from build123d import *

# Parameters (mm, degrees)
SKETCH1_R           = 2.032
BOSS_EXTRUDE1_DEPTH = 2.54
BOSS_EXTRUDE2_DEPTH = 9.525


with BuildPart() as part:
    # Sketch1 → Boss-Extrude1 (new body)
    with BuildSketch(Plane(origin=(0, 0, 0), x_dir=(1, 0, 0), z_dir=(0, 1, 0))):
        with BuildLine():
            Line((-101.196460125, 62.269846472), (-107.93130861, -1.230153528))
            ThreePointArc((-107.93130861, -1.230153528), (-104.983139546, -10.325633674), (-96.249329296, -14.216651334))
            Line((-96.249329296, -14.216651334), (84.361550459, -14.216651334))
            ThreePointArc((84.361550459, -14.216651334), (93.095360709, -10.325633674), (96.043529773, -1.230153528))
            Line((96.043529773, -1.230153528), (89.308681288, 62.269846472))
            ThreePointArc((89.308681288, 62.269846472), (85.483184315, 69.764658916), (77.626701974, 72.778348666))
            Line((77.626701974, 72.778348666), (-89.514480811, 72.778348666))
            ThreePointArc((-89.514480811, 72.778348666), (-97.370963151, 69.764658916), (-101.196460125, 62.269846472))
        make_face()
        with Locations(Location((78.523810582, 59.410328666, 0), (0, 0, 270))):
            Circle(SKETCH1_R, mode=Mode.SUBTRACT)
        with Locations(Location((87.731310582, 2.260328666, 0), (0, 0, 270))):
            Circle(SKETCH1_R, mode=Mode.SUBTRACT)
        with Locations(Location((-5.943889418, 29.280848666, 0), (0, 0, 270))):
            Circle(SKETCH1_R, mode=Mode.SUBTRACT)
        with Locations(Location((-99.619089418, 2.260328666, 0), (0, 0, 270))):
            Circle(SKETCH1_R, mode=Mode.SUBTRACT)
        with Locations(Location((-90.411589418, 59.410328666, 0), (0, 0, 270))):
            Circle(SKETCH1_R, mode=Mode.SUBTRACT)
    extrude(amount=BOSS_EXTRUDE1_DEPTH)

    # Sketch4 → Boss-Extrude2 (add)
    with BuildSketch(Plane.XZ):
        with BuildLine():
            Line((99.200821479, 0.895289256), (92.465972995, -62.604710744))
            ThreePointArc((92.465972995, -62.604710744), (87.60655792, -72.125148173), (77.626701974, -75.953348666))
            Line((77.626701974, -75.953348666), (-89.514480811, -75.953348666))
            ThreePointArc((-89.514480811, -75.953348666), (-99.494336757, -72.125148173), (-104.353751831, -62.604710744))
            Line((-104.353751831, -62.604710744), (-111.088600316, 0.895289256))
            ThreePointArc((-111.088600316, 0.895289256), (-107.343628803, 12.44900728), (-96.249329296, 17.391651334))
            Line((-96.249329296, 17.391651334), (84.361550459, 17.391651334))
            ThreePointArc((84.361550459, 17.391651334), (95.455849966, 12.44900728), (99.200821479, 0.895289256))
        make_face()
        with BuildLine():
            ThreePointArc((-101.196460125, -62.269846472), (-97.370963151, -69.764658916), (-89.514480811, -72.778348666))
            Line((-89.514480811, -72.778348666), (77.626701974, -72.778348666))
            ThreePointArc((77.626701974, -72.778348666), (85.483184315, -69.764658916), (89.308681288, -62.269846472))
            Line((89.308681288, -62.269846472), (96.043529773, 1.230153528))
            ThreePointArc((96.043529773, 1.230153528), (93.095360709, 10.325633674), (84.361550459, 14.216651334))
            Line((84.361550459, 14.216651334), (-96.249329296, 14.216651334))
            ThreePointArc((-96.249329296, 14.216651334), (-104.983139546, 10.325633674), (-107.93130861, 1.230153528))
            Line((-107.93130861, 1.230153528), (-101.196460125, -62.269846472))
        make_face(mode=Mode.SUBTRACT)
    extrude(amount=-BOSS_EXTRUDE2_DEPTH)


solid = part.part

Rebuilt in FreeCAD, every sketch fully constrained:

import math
import FreeCAD as App
import Part
import Sketcher
Q = App.Units.Quantity

doc = App.newDocument("Part")
body = doc.addObject("PartDesign::Body", "Body")

sketch1 = body.newObject("Sketcher::SketchObject", "Sketch")
sketch1.AttachmentSupport = (doc.getObject("XZ_Plane"), [""])
sketch1.MapMode = "FlatFace"
sketch1.addGeometry([
    Part.LineSegment(App.Vector(-101.2, -62.3, 0), App.Vector(-107.9, 1.2, 0)),
    Part.ArcOfCircle(Part.Circle(App.Vector(-96.2, 2.5, 0), App.Vector(0, 0, 1), 11.7), math.radians(90), math.radians(186)),
    Part.LineSegment(App.Vector(-96.2, 14.2, 0), App.Vector(84.4, 14.2, 0)),
    Part.ArcOfCircle(Part.Circle(App.Vector(84.4, 2.5, 0), App.Vector(0, 0, 1), 11.7), math.radians(-6), math.radians(90)),
    Part.LineSegment(App.Vector(96, 1.2, 0), App.Vector(89.3, -62.3, 0)),
    Part.ArcOfCircle(Part.Circle(App.Vector(77.6, -61, 0), App.Vector(0, 0, 1), 11.7), math.radians(-90), math.radians(-6)),
    Part.LineSegment(App.Vector(77.6, -72.8, 0), App.Vector(-89.5, -72.8, 0)),
    Part.ArcOfCircle(Part.Circle(App.Vector(-89.5, -61, 0), App.Vector(0, 0, 1), 11.7), math.radians(-174), math.radians(-90)),
    Part.Circle(App.Vector(-99.6, -2.3, 0), App.Vector(0, 0, 1), 2),
    Part.Circle(App.Vector(87.7, -2.3, 0), App.Vector(0, 0, 1), 2),
    Part.Circle(App.Vector(-5.9, -29.3, 0), App.Vector(0, 0, 1), 2),
    Part.Circle(App.Vector(-90.4, -59.4, 0), App.Vector(0, 0, 1), 2),
    Part.Circle(App.Vector(78.5, -59.4, 0), App.Vector(0, 0, 1), 2),
], False)
sketch1.addConstraint([
    Sketcher.Constraint("Tangent", 0, 2, 1, 2),
    Sketcher.Constraint("Tangent", 1, 1, 2, 1),
    Sketcher.Constraint("Tangent", 2, 2, 3, 2),
    Sketcher.Constraint("Tangent", 3, 1, 4, 1),
    Sketcher.Constraint("Tangent", 4, 2, 5, 2),
    Sketcher.Constraint("Tangent", 5, 1, 6, 1),
    Sketcher.Constraint("Tangent", 6, 2, 7, 2),
    Sketcher.Constraint("Tangent", 7, 1, 0, 1),
    Sketcher.Constraint("Horizontal", 2),
    Sketcher.Constraint("Horizontal", 6),
    Sketcher.Constraint("Equal", 1, 3),
    Sketcher.Constraint("Equal", 3, 5),
    Sketcher.Constraint("Equal", 5, 7),
    Sketcher.Constraint("Equal", 8, 9),
    Sketcher.Constraint("Equal", 9, 10),
    Sketcher.Constraint("Equal", 10, 11),
    Sketcher.Constraint("Equal", 11, 12),
    Sketcher.Constraint("Horizontal", 8, 3, 9, 3),
    Sketcher.Constraint("Horizontal", 11, 3, 12, 3),
    Sketcher.Constraint("Horizontal", 0, 2, 3, 1),
    Sketcher.Constraint("Diameter", 8, Q("0.16 in")),
    Sketcher.Constraint("Radius", 1, Q("0.4625 in")),
    Sketcher.Constraint("DistanceY", 5, 3, 3, 3, Q("2.5 in")),
    Sketcher.Constraint("DistanceY", 7, 3, 10, 3, Q("1.25 in")),
    Sketcher.Constraint("DistanceY", 11, 3, 8, 3, Q("2.25 in")),
    Sketcher.Constraint("DistanceX", 8, 3, 9, 3, Q("7.376 in")),
    Sketcher.Constraint("DistanceX", 8, 3, 10, 3, Q("3.688 in")),
    Sketcher.Constraint("DistanceY", 8, 3, 1, 3, Q("0.1862 in")),
    Sketcher.Constraint("DistanceX", 8, 3, 11, 3, Q("0.3625 in")),
    Sketcher.Constraint("DistanceX", 12, 3, 9, 3, Q("0.3625 in")),
    Sketcher.Constraint("DistanceX", 2, 1, 2, 2, Q("180.61088 mm")),
    Sketcher.Constraint("DistanceX", -1, 1, 5, 3, Q("77.626702 mm")),
    Sketcher.Constraint("DistanceX", 6, 2, 6, 1, Q("167.141183 mm")),
    Sketcher.Constraint("DistanceY", -1, 1, 1, 3, Q("2.469151 mm")),
    Sketcher.Constraint("DistanceX", 8, 3, -1, 1, Q("99.619089 mm")),
])
pad1 = body.newObject("PartDesign::Pad", "Pad")
pad1.Profile = sketch1
pad1.Length = Q("0.1 in")
pad1.Reversed = True

sketch2 = body.newObject("Sketcher::SketchObject", "Sketch001")
sketch2.AttachmentSupport = (doc.getObject("XZ_Plane"), [""])
sketch2.MapMode = "FlatFace"
sketch2.addGeometry([
    Part.LineSegment(App.Vector(92, -63, 0), App.Vector(99, 1, 0)),
    Part.ArcOfCircle(Part.Circle(App.Vector(84, 2, 0), App.Vector(0, 0, 1), 15), math.radians(-6), math.radians(90)),
    Part.LineSegment(App.Vector(84, 17, 0), App.Vector(-96, 17, 0)),
    Part.ArcOfCircle(Part.Circle(App.Vector(-96, 2, 0), App.Vector(0, 0, 1), 15), math.radians(90), math.radians(186)),
    Part.LineSegment(App.Vector(-111, 1, 0), App.Vector(-104, -63, 0)),
    Part.ArcOfCircle(Part.Circle(App.Vector(-90, -61, 0), App.Vector(0, 0, 1), 15), math.radians(-174), math.radians(-90)),
    Part.LineSegment(App.Vector(-90, -76, 0), App.Vector(78, -76, 0)),
    Part.ArcOfCircle(Part.Circle(App.Vector(78, -61, 0), App.Vector(0, 0, 1), 15), math.radians(-90), math.radians(-6)),
    Part.LineSegment(App.Vector(-101, -62, 0), App.Vector(-108, 1, 0)),
    Part.ArcOfCircle(Part.Circle(App.Vector(-96, 2, 0), App.Vector(0, 0, 1), 12), math.radians(90), math.radians(186)),
    Part.LineSegment(App.Vector(-96, 14, 0), App.Vector(84, 14, 0)),
    Part.ArcOfCircle(Part.Circle(App.Vector(84, 2, 0), App.Vector(0, 0, 1), 12), math.radians(-6), math.radians(90)),
    Part.LineSegment(App.Vector(96, 1, 0), App.Vector(89, -62, 0)),
    Part.ArcOfCircle(Part.Circle(App.Vector(78, -61, 0), App.Vector(0, 0, 1), 12), math.radians(-90), math.radians(-6)),
    Part.LineSegment(App.Vector(78, -73, 0), App.Vector(-90, -73, 0)),
    Part.ArcOfCircle(Part.Circle(App.Vector(-90, -61, 0), App.Vector(0, 0, 1), 12), math.radians(-174), math.radians(-90)),
], False)
sketch2.addConstraint([
    Sketcher.Constraint("Tangent", 0, 2, 1, 1),
    Sketcher.Constraint("Tangent", 1, 2, 2, 1),
    Sketcher.Constraint("Tangent", 2, 2, 3, 1),
    Sketcher.Constraint("Tangent", 3, 2, 4, 1),
    Sketcher.Constraint("Tangent", 4, 2, 5, 1),
    Sketcher.Constraint("Tangent", 5, 2, 6, 1),
    Sketcher.Constraint("Tangent", 6, 2, 7, 1),
    Sketcher.Constraint("Tangent", 7, 2, 0, 1),
    Sketcher.Constraint("Tangent", 8, 2, 9, 2),
    Sketcher.Constraint("Tangent", 9, 1, 10, 1),
    Sketcher.Constraint("Tangent", 10, 2, 11, 2),
    Sketcher.Constraint("Tangent", 11, 1, 12, 1),
    Sketcher.Constraint("Tangent", 12, 2, 13, 2),
    Sketcher.Constraint("Tangent", 13, 1, 14, 1),
    Sketcher.Constraint("Tangent", 14, 2, 15, 2),
    Sketcher.Constraint("Tangent", 15, 1, 8, 1),
    Sketcher.Constraint("Horizontal", 2),
    Sketcher.Constraint("Horizontal", 6),
    Sketcher.Constraint("Horizontal", 10),
    Sketcher.Constraint("Horizontal", 14),
    Sketcher.Constraint("Coincident", 9, 3, 3, 3),
    Sketcher.Constraint("Coincident", 11, 3, 1, 3),
    Sketcher.Constraint("Coincident", 13, 3, 7, 3),
    Sketcher.Constraint("Coincident", 15, 3, 5, 3),
    Sketcher.Constraint("Equal", 1, 3),
    Sketcher.Constraint("Equal", 3, 5),
    Sketcher.Constraint("Equal", 5, 7),
    Sketcher.Constraint("Equal", 11, 13),
    Sketcher.Constraint("Horizontal", 0, 2, 3, 2),
    Sketcher.Constraint("Radius", 1, Q("0.5875 in")),
    Sketcher.Constraint("Radius", 9, Q("0.4625 in")),
    Sketcher.Constraint("DistanceY", 5, 3, 3, 3, Q("2.5 in")),
    Sketcher.Constraint("DistanceX", 2, 2, 2, 1, Q("180.61088 mm")),
    Sketcher.Constraint("DistanceX", -1, 1, 7, 3, Q("77.626702 mm")),
    Sketcher.Constraint("DistanceX", 3, 2, -1, 1, Q("111.0886 mm")),
    Sketcher.Constraint("DistanceY", -1, 1, 1, 3, Q("2.469151 mm")),
])
pad2 = body.newObject("PartDesign::Pad", "Pad001")
pad2.Profile = sketch2
pad2.Length = Q("0.375 in")
pad2.Reversed = True

doc.recompute()
